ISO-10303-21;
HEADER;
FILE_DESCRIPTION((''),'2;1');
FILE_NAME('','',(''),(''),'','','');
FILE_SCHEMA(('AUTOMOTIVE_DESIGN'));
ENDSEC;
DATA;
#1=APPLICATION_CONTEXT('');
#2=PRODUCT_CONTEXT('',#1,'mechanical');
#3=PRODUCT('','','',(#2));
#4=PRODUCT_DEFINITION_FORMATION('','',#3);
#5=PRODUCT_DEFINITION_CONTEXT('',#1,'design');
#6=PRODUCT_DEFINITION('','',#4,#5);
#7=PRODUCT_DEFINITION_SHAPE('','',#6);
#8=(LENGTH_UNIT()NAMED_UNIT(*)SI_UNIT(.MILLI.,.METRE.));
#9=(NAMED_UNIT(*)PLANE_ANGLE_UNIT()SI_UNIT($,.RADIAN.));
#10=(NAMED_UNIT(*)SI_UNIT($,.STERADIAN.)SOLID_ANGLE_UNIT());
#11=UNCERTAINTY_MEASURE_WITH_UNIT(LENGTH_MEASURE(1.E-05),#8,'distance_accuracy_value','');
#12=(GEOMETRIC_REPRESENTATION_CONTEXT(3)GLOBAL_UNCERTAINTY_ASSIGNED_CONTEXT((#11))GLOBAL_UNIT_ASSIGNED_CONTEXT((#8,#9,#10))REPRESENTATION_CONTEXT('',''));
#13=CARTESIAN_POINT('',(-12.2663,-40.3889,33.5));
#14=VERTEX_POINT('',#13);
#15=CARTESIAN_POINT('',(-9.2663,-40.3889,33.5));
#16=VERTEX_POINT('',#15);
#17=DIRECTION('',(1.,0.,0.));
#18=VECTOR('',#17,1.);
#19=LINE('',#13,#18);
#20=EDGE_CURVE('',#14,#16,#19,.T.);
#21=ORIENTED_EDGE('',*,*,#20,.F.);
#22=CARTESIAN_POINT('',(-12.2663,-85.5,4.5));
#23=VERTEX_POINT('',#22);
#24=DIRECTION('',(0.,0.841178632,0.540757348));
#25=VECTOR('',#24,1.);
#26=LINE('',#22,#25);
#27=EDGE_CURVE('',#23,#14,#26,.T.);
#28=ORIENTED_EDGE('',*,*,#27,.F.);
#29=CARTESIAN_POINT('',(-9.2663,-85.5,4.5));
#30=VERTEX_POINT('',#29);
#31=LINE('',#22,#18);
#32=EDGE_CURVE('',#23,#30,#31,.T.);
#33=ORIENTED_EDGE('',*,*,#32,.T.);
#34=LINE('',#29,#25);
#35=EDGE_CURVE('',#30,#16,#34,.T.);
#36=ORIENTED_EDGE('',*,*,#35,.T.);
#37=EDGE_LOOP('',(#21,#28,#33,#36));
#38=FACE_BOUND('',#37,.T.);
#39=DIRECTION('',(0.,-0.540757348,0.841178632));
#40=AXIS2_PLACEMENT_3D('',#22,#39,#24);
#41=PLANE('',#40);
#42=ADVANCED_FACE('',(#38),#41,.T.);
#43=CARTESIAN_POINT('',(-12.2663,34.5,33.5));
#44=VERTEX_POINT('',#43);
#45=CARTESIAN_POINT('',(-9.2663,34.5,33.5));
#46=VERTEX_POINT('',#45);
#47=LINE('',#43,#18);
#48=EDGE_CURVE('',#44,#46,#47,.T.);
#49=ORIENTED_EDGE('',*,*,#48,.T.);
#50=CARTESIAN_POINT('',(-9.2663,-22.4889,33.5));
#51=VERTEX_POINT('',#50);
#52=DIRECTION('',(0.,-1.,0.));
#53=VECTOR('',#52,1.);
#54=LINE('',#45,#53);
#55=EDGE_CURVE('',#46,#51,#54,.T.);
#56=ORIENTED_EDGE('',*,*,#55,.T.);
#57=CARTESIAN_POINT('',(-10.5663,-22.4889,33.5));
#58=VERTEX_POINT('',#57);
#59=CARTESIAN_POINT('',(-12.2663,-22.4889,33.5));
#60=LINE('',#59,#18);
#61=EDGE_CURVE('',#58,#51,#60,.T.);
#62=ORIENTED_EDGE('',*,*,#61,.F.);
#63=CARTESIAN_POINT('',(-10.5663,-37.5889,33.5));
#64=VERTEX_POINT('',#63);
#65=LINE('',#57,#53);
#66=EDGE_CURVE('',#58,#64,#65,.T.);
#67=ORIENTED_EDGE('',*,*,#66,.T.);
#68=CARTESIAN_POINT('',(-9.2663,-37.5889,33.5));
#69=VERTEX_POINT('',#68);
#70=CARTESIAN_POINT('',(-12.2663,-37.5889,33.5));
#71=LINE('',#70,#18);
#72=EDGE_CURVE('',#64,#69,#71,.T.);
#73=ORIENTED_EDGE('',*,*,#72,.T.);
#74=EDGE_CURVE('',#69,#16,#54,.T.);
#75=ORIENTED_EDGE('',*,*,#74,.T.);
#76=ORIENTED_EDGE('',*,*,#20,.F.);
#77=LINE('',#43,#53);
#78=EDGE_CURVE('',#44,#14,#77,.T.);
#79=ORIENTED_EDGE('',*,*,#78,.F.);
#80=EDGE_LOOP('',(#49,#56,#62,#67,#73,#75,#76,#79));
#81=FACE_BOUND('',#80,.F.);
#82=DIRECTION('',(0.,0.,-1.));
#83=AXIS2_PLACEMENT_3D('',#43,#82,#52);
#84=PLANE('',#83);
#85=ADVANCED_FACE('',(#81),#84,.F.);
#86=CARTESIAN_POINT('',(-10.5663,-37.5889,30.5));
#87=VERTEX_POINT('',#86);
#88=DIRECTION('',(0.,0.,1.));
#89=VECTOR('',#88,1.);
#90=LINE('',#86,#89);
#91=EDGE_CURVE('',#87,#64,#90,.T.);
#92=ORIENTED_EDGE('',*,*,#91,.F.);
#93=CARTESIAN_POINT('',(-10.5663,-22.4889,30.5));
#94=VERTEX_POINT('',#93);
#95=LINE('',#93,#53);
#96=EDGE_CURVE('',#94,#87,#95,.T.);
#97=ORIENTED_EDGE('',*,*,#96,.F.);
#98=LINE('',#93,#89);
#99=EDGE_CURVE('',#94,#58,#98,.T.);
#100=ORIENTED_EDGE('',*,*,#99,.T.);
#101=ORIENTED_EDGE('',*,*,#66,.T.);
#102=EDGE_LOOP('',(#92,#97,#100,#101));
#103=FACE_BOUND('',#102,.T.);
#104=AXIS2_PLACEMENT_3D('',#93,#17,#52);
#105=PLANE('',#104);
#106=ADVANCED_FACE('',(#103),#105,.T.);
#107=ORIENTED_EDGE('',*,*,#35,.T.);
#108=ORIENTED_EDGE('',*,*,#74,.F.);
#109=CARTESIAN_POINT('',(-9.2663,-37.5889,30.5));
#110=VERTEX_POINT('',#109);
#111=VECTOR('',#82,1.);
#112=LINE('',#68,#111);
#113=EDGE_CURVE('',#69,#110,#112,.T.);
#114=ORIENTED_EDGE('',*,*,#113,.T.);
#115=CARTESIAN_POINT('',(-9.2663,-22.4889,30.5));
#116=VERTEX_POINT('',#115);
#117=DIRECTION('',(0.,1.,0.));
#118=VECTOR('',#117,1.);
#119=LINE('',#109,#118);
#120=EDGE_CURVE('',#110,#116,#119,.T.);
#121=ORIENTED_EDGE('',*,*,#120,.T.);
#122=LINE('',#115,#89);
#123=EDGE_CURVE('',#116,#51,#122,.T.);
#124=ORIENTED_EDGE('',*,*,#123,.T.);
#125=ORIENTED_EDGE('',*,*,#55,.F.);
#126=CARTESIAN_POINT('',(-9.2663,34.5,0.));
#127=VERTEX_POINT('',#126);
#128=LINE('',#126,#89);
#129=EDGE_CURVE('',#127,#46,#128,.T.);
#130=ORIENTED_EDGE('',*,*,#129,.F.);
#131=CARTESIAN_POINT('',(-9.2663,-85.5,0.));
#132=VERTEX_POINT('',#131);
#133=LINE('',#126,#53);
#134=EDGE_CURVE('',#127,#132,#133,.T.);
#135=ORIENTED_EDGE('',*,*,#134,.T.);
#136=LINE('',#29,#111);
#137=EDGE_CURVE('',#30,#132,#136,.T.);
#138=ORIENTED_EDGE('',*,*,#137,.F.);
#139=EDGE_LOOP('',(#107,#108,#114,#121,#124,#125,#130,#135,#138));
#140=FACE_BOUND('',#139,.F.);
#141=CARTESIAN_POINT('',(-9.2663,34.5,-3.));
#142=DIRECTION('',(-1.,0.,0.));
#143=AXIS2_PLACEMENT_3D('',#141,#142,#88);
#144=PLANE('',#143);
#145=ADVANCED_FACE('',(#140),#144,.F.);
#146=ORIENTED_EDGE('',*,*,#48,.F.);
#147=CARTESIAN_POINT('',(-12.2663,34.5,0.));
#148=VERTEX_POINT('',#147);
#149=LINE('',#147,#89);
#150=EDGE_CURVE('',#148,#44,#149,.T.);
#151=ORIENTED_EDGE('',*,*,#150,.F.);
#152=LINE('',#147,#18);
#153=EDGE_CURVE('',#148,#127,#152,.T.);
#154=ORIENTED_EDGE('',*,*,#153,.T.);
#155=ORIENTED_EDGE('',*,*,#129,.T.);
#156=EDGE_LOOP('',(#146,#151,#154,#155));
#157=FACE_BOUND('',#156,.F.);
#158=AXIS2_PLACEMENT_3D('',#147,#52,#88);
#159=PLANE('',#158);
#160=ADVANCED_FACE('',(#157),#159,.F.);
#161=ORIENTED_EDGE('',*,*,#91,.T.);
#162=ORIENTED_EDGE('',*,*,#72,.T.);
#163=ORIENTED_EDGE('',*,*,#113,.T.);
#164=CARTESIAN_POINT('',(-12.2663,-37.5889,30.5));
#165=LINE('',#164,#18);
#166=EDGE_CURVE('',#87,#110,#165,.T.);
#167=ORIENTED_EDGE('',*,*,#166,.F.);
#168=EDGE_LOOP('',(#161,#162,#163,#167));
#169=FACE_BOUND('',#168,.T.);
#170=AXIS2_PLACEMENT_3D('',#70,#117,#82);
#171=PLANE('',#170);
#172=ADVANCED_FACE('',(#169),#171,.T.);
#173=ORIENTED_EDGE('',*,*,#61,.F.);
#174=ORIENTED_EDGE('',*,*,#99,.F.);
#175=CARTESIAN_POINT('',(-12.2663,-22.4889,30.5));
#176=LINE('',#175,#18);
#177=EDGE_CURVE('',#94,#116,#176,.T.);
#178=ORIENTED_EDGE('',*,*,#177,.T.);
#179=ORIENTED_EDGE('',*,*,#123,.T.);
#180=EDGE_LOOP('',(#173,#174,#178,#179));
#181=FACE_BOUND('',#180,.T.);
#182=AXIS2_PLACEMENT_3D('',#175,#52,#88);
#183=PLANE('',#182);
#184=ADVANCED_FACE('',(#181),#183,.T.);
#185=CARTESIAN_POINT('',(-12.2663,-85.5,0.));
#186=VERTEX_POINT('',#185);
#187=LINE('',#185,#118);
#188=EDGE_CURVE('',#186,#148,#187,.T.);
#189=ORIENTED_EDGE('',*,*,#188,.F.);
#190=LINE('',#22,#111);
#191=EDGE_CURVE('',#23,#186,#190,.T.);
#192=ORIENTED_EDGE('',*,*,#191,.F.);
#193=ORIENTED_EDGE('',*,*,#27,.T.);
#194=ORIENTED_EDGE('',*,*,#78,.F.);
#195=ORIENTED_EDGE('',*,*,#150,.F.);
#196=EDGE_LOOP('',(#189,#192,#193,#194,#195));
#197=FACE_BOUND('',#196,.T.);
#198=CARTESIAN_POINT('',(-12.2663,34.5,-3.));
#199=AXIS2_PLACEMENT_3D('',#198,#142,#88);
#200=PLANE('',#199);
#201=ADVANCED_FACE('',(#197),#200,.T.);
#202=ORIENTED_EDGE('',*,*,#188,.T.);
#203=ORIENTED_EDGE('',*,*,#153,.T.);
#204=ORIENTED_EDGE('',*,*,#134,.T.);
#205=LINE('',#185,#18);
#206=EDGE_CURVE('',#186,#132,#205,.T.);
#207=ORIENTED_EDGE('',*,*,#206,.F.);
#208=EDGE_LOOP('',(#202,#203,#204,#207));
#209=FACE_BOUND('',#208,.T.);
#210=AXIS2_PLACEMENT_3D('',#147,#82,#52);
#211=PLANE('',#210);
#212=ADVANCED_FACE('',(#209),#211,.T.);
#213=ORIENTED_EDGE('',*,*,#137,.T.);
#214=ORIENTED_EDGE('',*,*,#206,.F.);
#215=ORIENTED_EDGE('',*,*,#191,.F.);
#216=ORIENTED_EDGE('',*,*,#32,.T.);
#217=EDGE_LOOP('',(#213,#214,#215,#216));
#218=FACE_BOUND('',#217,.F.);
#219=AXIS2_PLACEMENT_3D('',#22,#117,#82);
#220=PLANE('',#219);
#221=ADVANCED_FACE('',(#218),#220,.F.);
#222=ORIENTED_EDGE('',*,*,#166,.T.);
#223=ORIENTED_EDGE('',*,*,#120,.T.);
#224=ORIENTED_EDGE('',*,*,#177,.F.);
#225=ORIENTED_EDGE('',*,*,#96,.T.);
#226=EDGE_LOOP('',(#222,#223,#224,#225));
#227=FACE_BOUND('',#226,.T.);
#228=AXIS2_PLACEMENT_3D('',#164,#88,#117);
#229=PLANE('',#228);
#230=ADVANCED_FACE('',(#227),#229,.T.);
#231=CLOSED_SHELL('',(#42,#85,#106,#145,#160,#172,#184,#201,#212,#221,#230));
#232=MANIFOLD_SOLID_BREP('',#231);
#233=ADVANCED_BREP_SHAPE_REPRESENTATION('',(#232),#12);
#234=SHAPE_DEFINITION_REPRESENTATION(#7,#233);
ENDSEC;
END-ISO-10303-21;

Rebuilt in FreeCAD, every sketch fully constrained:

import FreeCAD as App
import Part
import Sketcher
from FreeCAD import Vector
Q = App.Units.Quantity

doc = App.newDocument("Part")
body = doc.addObject("PartDesign::Body", "Body")

sketch1 = doc.addObject("Sketcher::SketchObject", "Sketch")
body.addObject(sketch1)
sketch1.AttachmentSupport = (doc.YZ_Plane, [""])
sketch1.MapMode = "FlatFace"
sketch1.AttachmentOffset = App.Placement(Vector(0, 0, -12.2663), App.Rotation())
sketch1.addGeometry([
    Part.LineSegment(Vector(34.5, 33.5, 0), Vector(34.5, 0, 0)),
    Part.LineSegment(Vector(34.5, 0, 0), Vector(-85.5, 0, 0)),
    Part.LineSegment(Vector(-85.5, 0, 0), Vector(-85.5, 4.5, 0)),
    Part.LineSegment(Vector(-85.5, 4.5, 0), Vector(-40.4, 33.5, 0)),
    Part.LineSegment(Vector(-40.4, 33.5, 0), Vector(-37.6, 33.5, 0)),
    Part.LineSegment(Vector(-37.6, 33.5, 0), Vector(-37.6, 30.5, 0)),
    Part.LineSegment(Vector(-37.6, 30.5, 0), Vector(-22.5, 30.5, 0)),
    Part.LineSegment(Vector(-22.5, 30.5, 0), Vector(-22.5, 33.5, 0)),
    Part.LineSegment(Vector(-22.5, 33.5, 0), Vector(34.5, 33.5, 0)),
], False)
sketch1.addConstraint([
    Sketcher.Constraint("Coincident", 0, 2, 1, 1),
    Sketcher.Constraint("Coincident", 1, 2, 2, 1),
    Sketcher.Constraint("Coincident", 2, 2, 3, 1),
    Sketcher.Constraint("Coincident", 3, 2, 4, 1),
    Sketcher.Constraint("Coincident", 4, 2, 5, 1),
    Sketcher.Constraint("Coincident", 5, 2, 6, 1),
    Sketcher.Constraint("Coincident", 6, 2, 7, 1),
    Sketcher.Constraint("Coincident", 7, 2, 8, 1),
    Sketcher.Constraint("Coincident", 8, 2, 0, 1),
    Sketcher.Constraint("Vertical", 0),
    Sketcher.Constraint("Horizontal", 1),
    Sketcher.Constraint("Vertical", 2),
    Sketcher.Constraint("Horizontal", 4),
    Sketcher.Constraint("Vertical", 5),
    Sketcher.Constraint("Horizontal", 6),
    Sketcher.Constraint("Vertical", 7),
    Sketcher.Constraint("Horizontal", 8),
    Sketcher.Constraint("PointOnObject", 0, 2, -1),
    Sketcher.Constraint("Horizontal", 4, 2, 7, 2),
    Sketcher.Constraint("DistanceY", 5, 2, 5, 1, Q("3 mm")),
    Sketcher.Constraint("DistanceX", 4, 1, 4, 2, Q("2.8 mm")),
    Sketcher.Constraint("DistanceX", 6, 1, 6, 2, Q("15.1 mm")),
    Sketcher.Constraint("DistanceX", 1, 2, 1, 1, Q("120 mm")),
    Sketcher.Constraint("DistanceY", 0, 2, 0, 1, Q("33.5 mm")),
    Sketcher.Constraint("DistanceY", 2, 1, 2, 2, Q("4.5 mm")),
    Sketcher.Constraint("DistanceX", -1, 1, 0, 2, Q("34.5 mm")),
    Sketcher.Constraint("DistanceX", 8, 1, 8, 2, Q("56.989 mm")),
])
pad1 = doc.addObject("PartDesign::Pad", "Pad")
body.addObject(pad1)
pad1.Profile = sketch1
pad1.Length = 3

sketch2 = doc.addObject("Sketcher::SketchObject", "Sketch001")
body.addObject(sketch2)
sketch2.AttachmentSupport = (doc.XY_Plane, [""])
sketch2.MapMode = "FlatFace"
sketch2.AttachmentOffset = App.Placement(Vector(0, 0, 30.5), App.Rotation())
sketch2.addGeometry([
    Part.LineSegment(Vector(-12.3, -22.5, 0), Vector(-12.3, -37.6, 0)),
    Part.LineSegment(Vector(-12.3, -37.6, 0), Vector(-10.6, -37.6, 0)),
    Part.LineSegment(Vector(-10.6, -37.6, 0), Vector(-10.6, -22.5, 0)),
    Part.LineSegment(Vector(-10.6, -22.5, 0), Vector(-12.3, -22.5, 0)),
], False)
sketch2.addConstraint([
    Sketcher.Constraint("Coincident", 0, 2, 1, 1),
    Sketcher.Constraint("Coincident", 1, 2, 2, 1),
    Sketcher.Constraint("Coincident", 2, 2, 3, 1),
    Sketcher.Constraint("Coincident", 3, 2, 0, 1),
    Sketcher.Constraint("Vertical", 0),
    Sketcher.Constraint("Horizontal", 1),
    Sketcher.Constraint("Vertical", 2),
    Sketcher.Constraint("Horizontal", 3),
    Sketcher.Constraint("DistanceX", 1, 1, 1, 2, Q("1.7 mm")),
    Sketcher.Constraint("DistanceY", 0, 2, 0, 1, Q("15.1 mm")),
    Sketcher.Constraint("DistanceY", 0, 2, -1, 1, Q("37.589 mm")),
    Sketcher.Constraint("DistanceX", 0, 2, -1, 1, Q("12.2663 mm")),
])
pad2 = doc.addObject("PartDesign::Pad", "Pad001")
body.addObject(pad2)
pad2.Profile = sketch2
pad2.Length = 3

doc.recompute()
